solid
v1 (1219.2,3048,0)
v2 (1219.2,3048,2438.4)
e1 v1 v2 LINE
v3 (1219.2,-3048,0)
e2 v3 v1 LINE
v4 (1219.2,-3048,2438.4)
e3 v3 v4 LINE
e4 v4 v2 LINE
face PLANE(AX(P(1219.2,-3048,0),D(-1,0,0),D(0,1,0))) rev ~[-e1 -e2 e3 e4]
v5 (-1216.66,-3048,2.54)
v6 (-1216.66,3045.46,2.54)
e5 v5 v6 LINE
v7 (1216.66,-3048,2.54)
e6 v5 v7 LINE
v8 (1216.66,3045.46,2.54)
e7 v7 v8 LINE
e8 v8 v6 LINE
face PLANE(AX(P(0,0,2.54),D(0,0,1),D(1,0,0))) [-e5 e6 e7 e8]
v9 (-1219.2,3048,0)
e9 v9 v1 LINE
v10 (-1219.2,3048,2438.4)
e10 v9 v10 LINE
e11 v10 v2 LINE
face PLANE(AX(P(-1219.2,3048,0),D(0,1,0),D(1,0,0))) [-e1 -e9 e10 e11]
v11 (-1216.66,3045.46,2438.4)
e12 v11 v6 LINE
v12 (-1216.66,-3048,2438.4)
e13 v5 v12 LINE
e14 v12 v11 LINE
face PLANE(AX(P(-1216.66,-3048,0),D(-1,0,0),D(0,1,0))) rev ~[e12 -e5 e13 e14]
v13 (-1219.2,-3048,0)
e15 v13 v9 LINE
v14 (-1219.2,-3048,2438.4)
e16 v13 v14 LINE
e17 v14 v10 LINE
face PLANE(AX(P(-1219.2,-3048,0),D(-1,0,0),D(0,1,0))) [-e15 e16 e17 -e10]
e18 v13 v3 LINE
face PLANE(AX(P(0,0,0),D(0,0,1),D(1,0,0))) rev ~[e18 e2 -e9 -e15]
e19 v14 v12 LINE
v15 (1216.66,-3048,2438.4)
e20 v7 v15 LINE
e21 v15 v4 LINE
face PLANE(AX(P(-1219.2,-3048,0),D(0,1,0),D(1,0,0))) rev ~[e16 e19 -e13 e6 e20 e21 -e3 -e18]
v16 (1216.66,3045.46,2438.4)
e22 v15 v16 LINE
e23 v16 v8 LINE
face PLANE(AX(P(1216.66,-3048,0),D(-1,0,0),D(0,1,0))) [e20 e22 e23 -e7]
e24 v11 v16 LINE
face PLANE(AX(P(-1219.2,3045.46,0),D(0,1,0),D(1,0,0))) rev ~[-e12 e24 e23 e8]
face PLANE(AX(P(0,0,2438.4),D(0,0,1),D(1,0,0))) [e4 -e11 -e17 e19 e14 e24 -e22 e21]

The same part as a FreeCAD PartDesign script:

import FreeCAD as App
import Part
import Sketcher

V = App.Vector
Q = App.Units.Quantity


def faces_at(feature, points):
    """Names of the faces that lie closest to the given points."""
    faces = feature.Shape.Faces
    near = lambda p: min(range(len(faces)), key=lambda i: faces[i].distToShape(Part.Vertex(*p))[0])
    return sorted({f"Face{near(p) + 1}" for p in points})

doc = App.newDocument("Part")
body = doc.addObject("PartDesign::Body", "Body")

sketch1 = body.newObject("Sketcher::SketchObject", "Sketch")
sketch1.AttachmentSupport = (doc.getObject("XY_Plane"), [""])
sketch1.MapMode = "FlatFace"
sketch1.addGeometry(Part.LineSegment(V(-1219.2, 3048, 0), V(-1219.2, -3048, 0)), False)
sketch1.addGeometry(Part.LineSegment(V(-1219.2, -3048, 0), V(1219.2, -3048, 0)), False)
sketch1.addGeometry(Part.LineSegment(V(1219.2, -3048, 0), V(1219.2, 3048, 0)), False)
sketch1.addGeometry(Part.LineSegment(V(1219.2, 3048, 0), V(-1219.2, 3048, 0)), False)
sketch1.addConstraint(Sketcher.Constraint("Coincident", 0, 2, 1, 1))
sketch1.addConstraint(Sketcher.Constraint("Coincident", 1, 2, 2, 1))
sketch1.addConstraint(Sketcher.Constraint("Coincident", 2, 2, 3, 1))
sketch1.addConstraint(Sketcher.Constraint("Coincident", 3, 2, 0, 1))
sketch1.addConstraint(Sketcher.Constraint("Vertical", 0))
sketch1.addConstraint(Sketcher.Constraint("Horizontal", 1))
sketch1.addConstraint(Sketcher.Constraint("Vertical", 2))
sketch1.addConstraint(Sketcher.Constraint("Horizontal", 3))
sketch1.addConstraint(Sketcher.Constraint("Symmetric", 0, 2, 2, 2, -1, 1))
sketch1.addConstraint(Sketcher.Constraint("DistanceX", 1, 1, 1, 2, Q("96 in")))
sketch1.addConstraint(Sketcher.Constraint("DistanceY", 0, 2, 0, 1, Q("240 in")))
pad1 = body.newObject("PartDesign::Pad", "Pad")
pad1.Profile = sketch1
pad1.Length = Q("96 in")
doc.recompute()

thickness = body.newObject("PartDesign::Thickness", "Thickness")
thickness.Base = (pad1, faces_at(pad1, [(0, 0, 2438.4), (0, -3048, 1219.2)]))
thickness.Value = Q("0.1 in")
thickness.Reversed = True
thickness.Join = "Arc"

doc.recompute()
